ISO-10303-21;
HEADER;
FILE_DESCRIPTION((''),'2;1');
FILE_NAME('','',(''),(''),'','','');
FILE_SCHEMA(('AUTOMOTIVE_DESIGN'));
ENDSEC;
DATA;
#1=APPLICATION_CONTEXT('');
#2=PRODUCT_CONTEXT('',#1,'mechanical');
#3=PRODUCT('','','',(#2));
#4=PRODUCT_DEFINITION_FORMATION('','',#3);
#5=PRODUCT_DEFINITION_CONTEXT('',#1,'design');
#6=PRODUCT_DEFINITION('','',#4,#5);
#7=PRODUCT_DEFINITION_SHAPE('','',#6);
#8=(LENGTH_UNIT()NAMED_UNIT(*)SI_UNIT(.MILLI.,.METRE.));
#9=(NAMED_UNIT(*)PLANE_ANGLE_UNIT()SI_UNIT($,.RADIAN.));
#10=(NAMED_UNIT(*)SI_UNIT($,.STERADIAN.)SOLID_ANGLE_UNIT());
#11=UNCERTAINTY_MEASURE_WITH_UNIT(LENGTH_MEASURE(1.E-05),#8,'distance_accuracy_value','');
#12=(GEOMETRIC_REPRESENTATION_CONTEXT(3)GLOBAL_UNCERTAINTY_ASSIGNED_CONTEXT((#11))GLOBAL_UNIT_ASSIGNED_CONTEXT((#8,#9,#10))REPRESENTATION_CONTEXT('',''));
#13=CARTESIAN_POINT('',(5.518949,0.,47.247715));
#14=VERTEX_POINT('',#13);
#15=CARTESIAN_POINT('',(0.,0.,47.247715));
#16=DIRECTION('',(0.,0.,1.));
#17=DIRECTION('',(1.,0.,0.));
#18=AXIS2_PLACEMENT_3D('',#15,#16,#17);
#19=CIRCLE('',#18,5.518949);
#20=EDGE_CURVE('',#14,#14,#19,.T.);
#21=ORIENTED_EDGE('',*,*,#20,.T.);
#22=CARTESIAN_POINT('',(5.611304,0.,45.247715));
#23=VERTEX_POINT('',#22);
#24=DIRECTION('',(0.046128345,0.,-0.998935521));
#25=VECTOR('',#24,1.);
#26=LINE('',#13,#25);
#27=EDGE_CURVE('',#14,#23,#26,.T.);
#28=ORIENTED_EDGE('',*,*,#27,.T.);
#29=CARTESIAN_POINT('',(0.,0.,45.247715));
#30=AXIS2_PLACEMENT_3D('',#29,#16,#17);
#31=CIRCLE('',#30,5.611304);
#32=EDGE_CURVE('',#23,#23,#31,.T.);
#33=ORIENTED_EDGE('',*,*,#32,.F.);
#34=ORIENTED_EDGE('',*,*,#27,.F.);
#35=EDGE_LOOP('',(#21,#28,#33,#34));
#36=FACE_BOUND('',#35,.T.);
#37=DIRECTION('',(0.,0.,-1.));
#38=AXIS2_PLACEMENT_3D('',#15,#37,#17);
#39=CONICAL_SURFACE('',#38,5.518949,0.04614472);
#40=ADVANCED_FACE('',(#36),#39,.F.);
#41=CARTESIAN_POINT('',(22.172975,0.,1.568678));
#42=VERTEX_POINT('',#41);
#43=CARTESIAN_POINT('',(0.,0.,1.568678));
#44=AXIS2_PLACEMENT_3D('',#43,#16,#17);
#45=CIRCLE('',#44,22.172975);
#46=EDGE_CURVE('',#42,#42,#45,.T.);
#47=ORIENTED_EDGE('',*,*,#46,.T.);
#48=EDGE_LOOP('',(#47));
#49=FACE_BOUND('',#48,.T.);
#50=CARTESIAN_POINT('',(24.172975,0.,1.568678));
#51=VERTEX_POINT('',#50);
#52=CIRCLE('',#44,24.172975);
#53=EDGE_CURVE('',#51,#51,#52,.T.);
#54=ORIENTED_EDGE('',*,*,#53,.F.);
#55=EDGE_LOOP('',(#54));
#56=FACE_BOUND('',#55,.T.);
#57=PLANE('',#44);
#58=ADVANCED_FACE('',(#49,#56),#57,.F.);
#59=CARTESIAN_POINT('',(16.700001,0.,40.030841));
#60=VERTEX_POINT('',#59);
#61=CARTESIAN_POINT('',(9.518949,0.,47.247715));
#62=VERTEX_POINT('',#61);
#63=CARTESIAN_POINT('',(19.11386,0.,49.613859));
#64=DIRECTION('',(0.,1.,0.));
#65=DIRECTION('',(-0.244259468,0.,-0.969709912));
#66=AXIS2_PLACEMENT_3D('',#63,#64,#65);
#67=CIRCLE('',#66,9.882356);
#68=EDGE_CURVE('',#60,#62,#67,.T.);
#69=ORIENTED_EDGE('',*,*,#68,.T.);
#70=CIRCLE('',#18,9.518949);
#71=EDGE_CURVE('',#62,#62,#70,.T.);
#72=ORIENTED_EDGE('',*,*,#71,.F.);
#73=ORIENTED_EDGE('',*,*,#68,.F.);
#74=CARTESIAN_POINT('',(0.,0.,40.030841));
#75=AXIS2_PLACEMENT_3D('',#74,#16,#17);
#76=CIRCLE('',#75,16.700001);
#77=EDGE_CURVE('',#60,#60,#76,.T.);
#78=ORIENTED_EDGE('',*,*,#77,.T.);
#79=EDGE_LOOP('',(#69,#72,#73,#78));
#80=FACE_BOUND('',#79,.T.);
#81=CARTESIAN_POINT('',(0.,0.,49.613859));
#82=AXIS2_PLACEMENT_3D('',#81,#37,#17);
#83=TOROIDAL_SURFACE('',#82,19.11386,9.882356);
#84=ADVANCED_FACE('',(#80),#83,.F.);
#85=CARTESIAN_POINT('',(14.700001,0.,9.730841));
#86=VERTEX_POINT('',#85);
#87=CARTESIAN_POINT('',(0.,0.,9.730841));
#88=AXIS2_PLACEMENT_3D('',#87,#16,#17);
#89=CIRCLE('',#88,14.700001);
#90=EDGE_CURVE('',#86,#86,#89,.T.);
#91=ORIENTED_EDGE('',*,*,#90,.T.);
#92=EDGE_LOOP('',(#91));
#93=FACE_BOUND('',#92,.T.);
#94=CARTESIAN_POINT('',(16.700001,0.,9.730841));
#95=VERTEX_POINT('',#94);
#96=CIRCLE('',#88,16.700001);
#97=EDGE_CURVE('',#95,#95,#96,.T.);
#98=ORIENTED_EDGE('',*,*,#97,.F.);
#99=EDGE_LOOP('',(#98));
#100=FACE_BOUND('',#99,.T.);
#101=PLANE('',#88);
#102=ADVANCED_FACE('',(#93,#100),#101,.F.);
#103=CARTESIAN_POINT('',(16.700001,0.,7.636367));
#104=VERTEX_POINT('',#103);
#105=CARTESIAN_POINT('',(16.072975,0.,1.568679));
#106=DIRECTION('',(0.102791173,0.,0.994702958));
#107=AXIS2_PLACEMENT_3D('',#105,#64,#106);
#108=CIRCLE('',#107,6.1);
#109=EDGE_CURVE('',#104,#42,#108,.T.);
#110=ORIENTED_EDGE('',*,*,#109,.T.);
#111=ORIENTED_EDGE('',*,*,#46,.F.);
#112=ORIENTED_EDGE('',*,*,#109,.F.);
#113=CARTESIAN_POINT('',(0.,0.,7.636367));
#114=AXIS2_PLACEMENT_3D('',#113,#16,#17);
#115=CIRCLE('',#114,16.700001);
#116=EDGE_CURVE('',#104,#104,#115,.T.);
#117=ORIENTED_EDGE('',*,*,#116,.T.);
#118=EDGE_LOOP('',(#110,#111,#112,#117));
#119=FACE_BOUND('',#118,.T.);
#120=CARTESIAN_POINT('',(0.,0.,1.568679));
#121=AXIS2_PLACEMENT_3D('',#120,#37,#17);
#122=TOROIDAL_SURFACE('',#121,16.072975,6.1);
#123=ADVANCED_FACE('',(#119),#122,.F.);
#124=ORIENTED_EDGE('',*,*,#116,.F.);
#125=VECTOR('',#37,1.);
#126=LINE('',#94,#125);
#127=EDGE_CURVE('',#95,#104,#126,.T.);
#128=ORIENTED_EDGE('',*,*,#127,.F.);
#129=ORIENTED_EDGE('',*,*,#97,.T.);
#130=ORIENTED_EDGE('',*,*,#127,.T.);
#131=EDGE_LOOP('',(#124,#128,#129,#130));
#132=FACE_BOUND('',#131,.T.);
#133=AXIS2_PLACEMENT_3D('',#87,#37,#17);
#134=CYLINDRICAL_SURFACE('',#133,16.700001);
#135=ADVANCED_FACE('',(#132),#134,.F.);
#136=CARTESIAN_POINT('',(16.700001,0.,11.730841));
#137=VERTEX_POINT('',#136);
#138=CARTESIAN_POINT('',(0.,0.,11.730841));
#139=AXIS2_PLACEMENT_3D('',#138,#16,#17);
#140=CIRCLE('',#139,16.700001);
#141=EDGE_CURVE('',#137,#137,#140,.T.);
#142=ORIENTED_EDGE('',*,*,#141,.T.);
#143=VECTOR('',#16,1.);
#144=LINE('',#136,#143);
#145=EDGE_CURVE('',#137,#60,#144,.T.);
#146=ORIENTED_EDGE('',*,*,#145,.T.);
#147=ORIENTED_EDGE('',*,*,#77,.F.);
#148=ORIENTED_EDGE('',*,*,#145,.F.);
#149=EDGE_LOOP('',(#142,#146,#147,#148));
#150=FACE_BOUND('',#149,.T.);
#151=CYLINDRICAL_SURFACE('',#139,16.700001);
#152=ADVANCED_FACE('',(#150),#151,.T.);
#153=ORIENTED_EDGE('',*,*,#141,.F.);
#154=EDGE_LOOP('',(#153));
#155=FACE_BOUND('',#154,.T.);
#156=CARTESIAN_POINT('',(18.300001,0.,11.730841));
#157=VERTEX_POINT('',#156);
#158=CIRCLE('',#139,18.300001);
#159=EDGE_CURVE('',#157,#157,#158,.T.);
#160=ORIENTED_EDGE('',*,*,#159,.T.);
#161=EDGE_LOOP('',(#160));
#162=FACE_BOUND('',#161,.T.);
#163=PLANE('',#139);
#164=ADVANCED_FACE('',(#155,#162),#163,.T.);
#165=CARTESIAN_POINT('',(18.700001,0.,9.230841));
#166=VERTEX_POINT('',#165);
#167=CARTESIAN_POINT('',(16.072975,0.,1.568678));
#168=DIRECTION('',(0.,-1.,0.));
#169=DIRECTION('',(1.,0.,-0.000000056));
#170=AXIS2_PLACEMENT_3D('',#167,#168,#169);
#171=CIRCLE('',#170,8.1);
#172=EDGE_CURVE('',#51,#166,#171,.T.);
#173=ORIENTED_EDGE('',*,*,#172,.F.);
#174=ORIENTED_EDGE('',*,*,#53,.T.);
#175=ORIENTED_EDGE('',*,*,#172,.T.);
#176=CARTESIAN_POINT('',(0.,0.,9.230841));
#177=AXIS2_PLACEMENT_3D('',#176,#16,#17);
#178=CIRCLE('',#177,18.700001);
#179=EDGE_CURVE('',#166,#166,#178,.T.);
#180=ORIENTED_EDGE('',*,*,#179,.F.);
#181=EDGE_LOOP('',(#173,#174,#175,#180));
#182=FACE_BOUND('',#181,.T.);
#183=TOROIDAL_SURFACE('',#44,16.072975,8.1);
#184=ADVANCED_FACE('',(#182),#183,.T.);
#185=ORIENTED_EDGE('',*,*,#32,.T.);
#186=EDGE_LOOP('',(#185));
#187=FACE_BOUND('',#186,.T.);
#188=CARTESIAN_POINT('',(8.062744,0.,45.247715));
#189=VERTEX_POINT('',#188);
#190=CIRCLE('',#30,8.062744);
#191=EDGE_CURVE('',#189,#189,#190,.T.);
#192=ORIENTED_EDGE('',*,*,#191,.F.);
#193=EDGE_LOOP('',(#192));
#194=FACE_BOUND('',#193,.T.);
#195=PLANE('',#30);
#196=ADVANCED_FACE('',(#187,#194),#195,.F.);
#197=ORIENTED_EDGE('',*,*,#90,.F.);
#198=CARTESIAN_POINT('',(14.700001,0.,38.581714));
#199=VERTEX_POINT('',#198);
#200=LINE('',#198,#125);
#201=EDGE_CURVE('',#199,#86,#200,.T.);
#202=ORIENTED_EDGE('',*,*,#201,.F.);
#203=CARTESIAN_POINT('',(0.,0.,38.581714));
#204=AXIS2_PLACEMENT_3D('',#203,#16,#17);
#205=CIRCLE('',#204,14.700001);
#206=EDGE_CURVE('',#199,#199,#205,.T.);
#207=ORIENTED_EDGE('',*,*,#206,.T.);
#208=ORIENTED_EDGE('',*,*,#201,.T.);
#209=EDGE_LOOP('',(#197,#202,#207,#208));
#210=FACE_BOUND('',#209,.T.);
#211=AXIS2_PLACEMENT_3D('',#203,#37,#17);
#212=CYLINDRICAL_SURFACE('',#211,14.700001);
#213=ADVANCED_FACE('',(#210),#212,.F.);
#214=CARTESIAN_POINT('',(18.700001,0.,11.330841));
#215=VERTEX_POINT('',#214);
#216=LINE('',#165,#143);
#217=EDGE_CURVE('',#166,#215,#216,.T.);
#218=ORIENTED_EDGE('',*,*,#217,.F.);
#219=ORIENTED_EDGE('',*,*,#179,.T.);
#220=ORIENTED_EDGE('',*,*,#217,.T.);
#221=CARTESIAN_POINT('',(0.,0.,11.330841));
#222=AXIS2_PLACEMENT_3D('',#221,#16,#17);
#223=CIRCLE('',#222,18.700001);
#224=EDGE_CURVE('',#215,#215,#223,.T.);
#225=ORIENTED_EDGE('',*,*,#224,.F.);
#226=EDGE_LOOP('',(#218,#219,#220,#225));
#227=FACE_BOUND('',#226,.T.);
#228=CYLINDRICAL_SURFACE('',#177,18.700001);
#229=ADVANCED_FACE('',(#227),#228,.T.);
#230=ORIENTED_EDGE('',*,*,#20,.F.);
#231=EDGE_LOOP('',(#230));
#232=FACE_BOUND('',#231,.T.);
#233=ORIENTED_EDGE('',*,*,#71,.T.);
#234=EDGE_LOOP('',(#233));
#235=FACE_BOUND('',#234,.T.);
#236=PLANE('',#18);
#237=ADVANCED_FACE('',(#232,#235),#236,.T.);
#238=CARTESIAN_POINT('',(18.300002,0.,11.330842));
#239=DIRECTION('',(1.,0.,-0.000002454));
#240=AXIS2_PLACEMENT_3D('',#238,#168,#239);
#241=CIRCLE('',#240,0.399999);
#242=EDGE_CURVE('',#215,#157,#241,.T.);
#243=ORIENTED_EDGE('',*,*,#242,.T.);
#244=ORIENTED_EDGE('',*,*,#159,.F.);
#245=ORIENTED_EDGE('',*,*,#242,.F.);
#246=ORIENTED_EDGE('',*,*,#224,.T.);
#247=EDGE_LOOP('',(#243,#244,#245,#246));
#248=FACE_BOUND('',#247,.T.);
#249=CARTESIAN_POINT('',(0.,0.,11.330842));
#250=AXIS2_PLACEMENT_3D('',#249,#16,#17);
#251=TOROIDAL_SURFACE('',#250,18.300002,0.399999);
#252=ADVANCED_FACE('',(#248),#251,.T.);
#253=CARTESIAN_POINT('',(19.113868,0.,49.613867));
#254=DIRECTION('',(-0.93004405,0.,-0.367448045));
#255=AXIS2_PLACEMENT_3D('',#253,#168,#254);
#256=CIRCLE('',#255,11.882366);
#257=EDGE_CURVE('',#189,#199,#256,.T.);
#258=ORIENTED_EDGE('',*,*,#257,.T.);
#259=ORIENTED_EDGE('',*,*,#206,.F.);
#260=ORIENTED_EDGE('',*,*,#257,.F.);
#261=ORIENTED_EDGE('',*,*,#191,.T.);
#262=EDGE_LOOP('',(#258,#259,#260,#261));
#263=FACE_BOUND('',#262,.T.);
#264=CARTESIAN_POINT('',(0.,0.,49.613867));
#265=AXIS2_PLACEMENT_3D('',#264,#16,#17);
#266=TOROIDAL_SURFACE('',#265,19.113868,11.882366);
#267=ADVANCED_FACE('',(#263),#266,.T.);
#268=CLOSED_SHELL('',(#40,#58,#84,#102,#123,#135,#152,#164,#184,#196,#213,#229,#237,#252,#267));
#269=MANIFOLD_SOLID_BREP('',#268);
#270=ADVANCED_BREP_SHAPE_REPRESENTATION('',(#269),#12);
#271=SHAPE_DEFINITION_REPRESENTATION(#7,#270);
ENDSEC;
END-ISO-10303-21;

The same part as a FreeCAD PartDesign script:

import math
import FreeCAD as App
import Part
import Sketcher

V = App.Vector
Q = App.Units.Quantity

doc = App.newDocument("Part")
body = doc.addObject("PartDesign::Body", "Body")

# Sketch on XZ plane
sketch1 = body.newObject("Sketcher::SketchObject", "Sketch")
sketch1.AttachmentSupport = (doc.getObject("XZ_Plane"), [""])
sketch1.MapMode = "FlatFace"
sketch1.addGeometry(Part.LineSegment(V(9.52, 47.25, 0), V(5.52, 47.25, 0)), False)
sketch1.addGeometry(Part.LineSegment(V(5.52, 47.25, 0), V(5.61, 45.25, 0)), False)
sketch1.addGeometry(Part.LineSegment(V(5.61, 45.25, 0), V(8.06, 45.25, 0)), False)
sketch1.addGeometry(Part.ArcOfCircle(Part.Circle(V(19.11, 49.61, 0), V(0, 0, 1), 11.88), math.radians(-158), math.radians(-112)), False)
sketch1.addGeometry(Part.LineSegment(V(14.7, 38.58, 0), V(14.7, 9.73, 0)), False)
sketch1.addGeometry(Part.LineSegment(V(14.7, 9.73, 0), V(16.7, 9.73, 0)), False)
sketch1.addGeometry(Part.LineSegment(V(16.7, 9.73, 0), V(16.7, 7.64, 0)), False)
sketch1.addGeometry(Part.ArcOfCircle(Part.Circle(V(16.07, 1.57, 0), V(0, 0, 1), 6.1), math.radians(0), math.radians(84)), False)
sketch1.addGeometry(Part.LineSegment(V(22.17, 1.57, 0), V(24.17, 1.57, 0)), False)
sketch1.addGeometry(Part.ArcOfCircle(Part.Circle(V(16.07, 1.57, 0), V(0, 0, 1), 8.1), math.radians(0), math.radians(71)), False)
sketch1.addGeometry(Part.LineSegment(V(18.7, 9.23, 0), V(18.7, 11.33, 0)), False)
sketch1.addGeometry(Part.ArcOfCircle(Part.Circle(V(18.3, 11.33, 0), V(0, 0, 1), 0.4), math.radians(0), math.radians(90)), False)
sketch1.addGeometry(Part.LineSegment(V(18.3, 11.73, 0), V(16.7, 11.73, 0)), False)
sketch1.addGeometry(Part.LineSegment(V(16.7, 11.73, 0), V(16.7, 40.03, 0)), False)
sketch1.addGeometry(Part.ArcOfCircle(Part.Circle(V(19.11, 49.61, 0), V(0, 0, 1), 9.88), math.radians(-166), math.radians(-104)), False)
sketch1.addConstraint(Sketcher.Constraint("Coincident", 0, 2, 1, 1))
sketch1.addConstraint(Sketcher.Constraint("Coincident", 1, 2, 2, 1))
sketch1.addConstraint(Sketcher.Constraint("Coincident", 2, 2, 3, 1))
sketch1.addConstraint(Sketcher.Constraint("Coincident", 3, 2, 4, 1))
sketch1.addConstraint(Sketcher.Constraint("Coincident", 4, 2, 5, 1))
sketch1.addConstraint(Sketcher.Constraint("Coincident", 5, 2, 6, 1))
sketch1.addConstraint(Sketcher.Constraint("Coincident", 6, 2, 7, 2))
sketch1.addConstraint(Sketcher.Constraint("Coincident", 7, 1, 8, 1))
sketch1.addConstraint(Sketcher.Constraint("Coincident", 8, 2, 9, 1))
sketch1.addConstraint(Sketcher.Constraint("Coincident", 9, 2, 10, 1))
sketch1.addConstraint(Sketcher.Constraint("Coincident", 10, 2, 11, 1))
sketch1.addConstraint(Sketcher.Constraint("Coincident", 11, 2, 12, 1))
sketch1.addConstraint(Sketcher.Constraint("Coincident", 12, 2, 13, 1))
sketch1.addConstraint(Sketcher.Constraint("Coincident", 13, 2, 14, 2))
sketch1.addConstraint(Sketcher.Constraint("Coincident", 14, 1, 0, 1))
sketch1.addConstraint(Sketcher.Constraint("Horizontal", 0))
sketch1.addConstraint(Sketcher.Constraint("Horizontal", 2))
sketch1.addConstraint(Sketcher.Constraint("Vertical", 4))
sketch1.addConstraint(Sketcher.Constraint("Horizontal", 5))
sketch1.addConstraint(Sketcher.Constraint("Vertical", 6))
sketch1.addConstraint(Sketcher.Constraint("Horizontal", 8))
sketch1.addConstraint(Sketcher.Constraint("Vertical", 10))
sketch1.addConstraint(Sketcher.Constraint("Horizontal", 12))
sketch1.addConstraint(Sketcher.Constraint("Vertical", 13))
sketch1.addConstraint(Sketcher.Constraint("Coincident", 9, 3, 7, 3))
sketch1.addConstraint(Sketcher.Constraint("Horizontal", 9, 3, 7, 1))
sketch1.addConstraint(Sketcher.Constraint("Horizontal", 11, 3, 10, 2))
sketch1.addConstraint(Sketcher.Constraint("Vertical", 6, 2, 12, 2))
sketch1.addConstraint(Sketcher.Constraint("Equal", 5, 8))
sketch1.addConstraint(Sketcher.Constraint("Radius", 7, Q("6.1 mm")))
sketch1.addConstraint(Sketcher.Constraint("Radius", 9, Q("8.1 mm")))
sketch1.addConstraint(Sketcher.Constraint("Radius", 11, Q("0.399999 mm")))
sketch1.addConstraint(Sketcher.Constraint("DistanceX", 0, 2, 0, 1, Q("4 mm")))
sketch1.addConstraint(Sketcher.Constraint("DistanceX", 12, 2, 12, 1, Q("1.6 mm")))
sketch1.addConstraint(Sketcher.Constraint("DistanceY", 10, 1, 10, 2, Q("2.1 mm")))
sketch1.addConstraint(Sketcher.Constraint("DistanceY", 13, 1, 13, 2, Q("28.3 mm")))
sketch1.addConstraint(Sketcher.Constraint("DistanceY", 1, 2, 0, 2, Q("2 mm")))
sketch1.addConstraint(Sketcher.Constraint("DistanceX", 5, 2, 9, 2, Q("2 mm")))
sketch1.addConstraint(Sketcher.Constraint("DistanceY", 5, 2, 11, 2, Q("2 mm")))
sketch1.addConstraint(Sketcher.Constraint("DistanceX", -1, 1, 11, 3, Q("18.300002 mm")))
sketch1.addConstraint(Sketcher.Constraint("Radius", 3, Q("11.882366 mm")))
sketch1.addConstraint(Sketcher.Constraint("Radius", 14, Q("9.882356 mm")))
sketch1.addConstraint(Sketcher.Constraint("DistanceY", 3, 2, 2, 2, Q("6.666001 mm")))
sketch1.addConstraint(Sketcher.Constraint("DistanceX", 2, 1, 2, 2, Q("2.45144 mm")))
sketch1.addConstraint(Sketcher.Constraint("Distance", 1, Q("2.002131 mm")))
sketch1.addConstraint(Sketcher.Constraint("DistanceY", 4, 2, 4, 1, Q("28.850873 mm")))
sketch1.addConstraint(Sketcher.Constraint("DistanceY", 6, 2, 6, 1, Q("2.094474 mm")))
sketch1.addConstraint(Sketcher.Constraint("DistanceY", -1, 1, 7, 3, Q("1.568679 mm")))
sketch1.addConstraint(Sketcher.Constraint("DistanceX", -1, 1, 14, 3, Q("19.11386 mm")))
revolution = body.newObject("PartDesign::Revolution", "Revolution")
revolution.Profile = sketch1
revolution.ReferenceAxis = (sketch1, ["V_Axis"])
revolution.Angle = 360

doc.recompute()
